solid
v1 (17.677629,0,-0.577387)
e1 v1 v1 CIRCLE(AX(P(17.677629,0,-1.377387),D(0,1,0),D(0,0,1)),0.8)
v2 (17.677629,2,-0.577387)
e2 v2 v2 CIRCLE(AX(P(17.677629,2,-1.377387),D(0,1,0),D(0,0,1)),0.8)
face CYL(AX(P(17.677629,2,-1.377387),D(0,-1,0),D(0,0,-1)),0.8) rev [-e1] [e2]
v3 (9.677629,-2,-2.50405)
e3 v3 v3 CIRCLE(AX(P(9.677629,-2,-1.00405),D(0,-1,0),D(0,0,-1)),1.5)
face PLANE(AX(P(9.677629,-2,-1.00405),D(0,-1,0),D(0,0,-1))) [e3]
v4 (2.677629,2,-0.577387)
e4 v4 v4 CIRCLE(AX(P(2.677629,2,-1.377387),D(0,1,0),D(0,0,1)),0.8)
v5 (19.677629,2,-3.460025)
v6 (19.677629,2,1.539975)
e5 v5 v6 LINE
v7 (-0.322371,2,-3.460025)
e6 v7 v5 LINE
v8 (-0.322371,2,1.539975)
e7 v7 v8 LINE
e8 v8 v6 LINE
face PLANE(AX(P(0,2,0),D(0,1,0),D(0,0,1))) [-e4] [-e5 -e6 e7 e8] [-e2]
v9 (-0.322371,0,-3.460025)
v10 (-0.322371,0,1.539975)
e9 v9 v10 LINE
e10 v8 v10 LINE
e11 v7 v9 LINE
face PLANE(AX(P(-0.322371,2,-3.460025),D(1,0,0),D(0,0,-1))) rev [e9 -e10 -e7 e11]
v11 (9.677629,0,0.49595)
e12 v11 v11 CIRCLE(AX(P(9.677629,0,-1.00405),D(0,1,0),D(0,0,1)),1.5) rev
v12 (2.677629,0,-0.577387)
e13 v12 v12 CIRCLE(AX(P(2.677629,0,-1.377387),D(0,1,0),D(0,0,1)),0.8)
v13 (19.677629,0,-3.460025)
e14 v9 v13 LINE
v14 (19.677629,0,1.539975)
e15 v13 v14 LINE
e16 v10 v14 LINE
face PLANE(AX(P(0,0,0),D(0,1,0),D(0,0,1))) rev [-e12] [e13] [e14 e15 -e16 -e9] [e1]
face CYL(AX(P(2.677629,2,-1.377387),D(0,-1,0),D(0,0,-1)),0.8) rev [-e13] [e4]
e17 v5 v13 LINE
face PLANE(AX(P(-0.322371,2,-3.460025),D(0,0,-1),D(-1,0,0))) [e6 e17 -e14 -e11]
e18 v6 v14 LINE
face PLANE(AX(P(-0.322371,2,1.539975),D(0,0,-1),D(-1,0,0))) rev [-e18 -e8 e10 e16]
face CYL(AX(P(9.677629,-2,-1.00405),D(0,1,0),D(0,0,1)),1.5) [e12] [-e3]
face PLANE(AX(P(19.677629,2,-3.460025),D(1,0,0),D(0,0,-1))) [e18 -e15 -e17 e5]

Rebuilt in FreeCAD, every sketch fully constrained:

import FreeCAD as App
import Part
import Sketcher
from FreeCAD import Vector


def add_polygon(sketch, points):
    """Adds a closed chain of lines whose ends are joined by coincident constraints."""
    first, n = sketch.GeometryCount, len(points)
    for a, b in zip(points, points[1:] + points[:1]):
        sketch.addGeometry(Part.LineSegment(App.Vector(*a, 0), App.Vector(*b, 0)), False)
    for i in range(n):
        sketch.addConstraint(Sketcher.Constraint("Coincident", first + i, 2, first + (i + 1) % n, 1))

doc = App.newDocument("Part")
body = doc.addObject("PartDesign::Body", "Body")

sketch1 = body.newObject("Sketcher::SketchObject", "Sketch")
sketch1.AttachmentSupport = (doc.getObject("XZ_Plane"), [""])
sketch1.MapMode = "FlatFace"
add_polygon(sketch1, [(-0.3, -3.5), (-0.3, 1.5), (19.7, 1.5), (19.7, -3.5)])
sketch1.addGeometry(Part.Circle(Vector(2.7, -1.4, 0), Vector(0, 0, 1), 0.8), False)
sketch1.addGeometry(Part.Circle(Vector(17.7, -1.4, 0), Vector(0, 0, 1), 0.8), False)
sketch1.addConstraint([
    Sketcher.Constraint("Vertical", 0),
    Sketcher.Constraint("Horizontal", 1),
    Sketcher.Constraint("Vertical", 2),
    Sketcher.Constraint("Horizontal", 3),
    Sketcher.Constraint("Equal", 4, 5),
    Sketcher.Constraint("Horizontal", 4, 3, 5, 3),
    Sketcher.Constraint("Diameter", 4, 1.6),
    Sketcher.Constraint("DistanceX", 1, 1, 1, 2, 20.0),
    Sketcher.Constraint("DistanceY", 0, 1, 0, 2, 5.0),
    Sketcher.Constraint("DistanceX", 4, 3, 5, 3, 15.0),
    Sketcher.Constraint("DistanceX", 0, 2, 4, 3, 3.0),
    Sketcher.Constraint("DistanceX", -1, 1, 4, 3, 2.677629),
    Sketcher.Constraint("DistanceY", 4, 3, -1, 1, 1.377387),
    Sketcher.Constraint("DistanceY", -1, 1, 0, 2, 1.539975),
])
pad1 = body.newObject("PartDesign::Pad", "Pad")
pad1.Profile = sketch1
pad1.Length = 2
pad1.Reversed = True

sketch2 = body.newObject("Sketcher::SketchObject", "Sketch001")
sketch2.AttachmentSupport = (doc.getObject("XZ_Plane"), [""])
sketch2.MapMode = "FlatFace"
sketch2.addGeometry(Part.Circle(Vector(9.7, -1, 0), Vector(0, 0, 1), 1.5), False)
sketch2.addConstraint([
    Sketcher.Constraint("Diameter", 0, 3.0),
    Sketcher.Constraint("DistanceX", -1, 1, 0, 3, 9.677629),
    Sketcher.Constraint("DistanceY", 0, 3, -1, 1, 1.00405),
])
pad2 = body.newObject("PartDesign::Pad", "Pad001")
pad2.Profile = sketch2
pad2.Length = 2

doc.recompute()
